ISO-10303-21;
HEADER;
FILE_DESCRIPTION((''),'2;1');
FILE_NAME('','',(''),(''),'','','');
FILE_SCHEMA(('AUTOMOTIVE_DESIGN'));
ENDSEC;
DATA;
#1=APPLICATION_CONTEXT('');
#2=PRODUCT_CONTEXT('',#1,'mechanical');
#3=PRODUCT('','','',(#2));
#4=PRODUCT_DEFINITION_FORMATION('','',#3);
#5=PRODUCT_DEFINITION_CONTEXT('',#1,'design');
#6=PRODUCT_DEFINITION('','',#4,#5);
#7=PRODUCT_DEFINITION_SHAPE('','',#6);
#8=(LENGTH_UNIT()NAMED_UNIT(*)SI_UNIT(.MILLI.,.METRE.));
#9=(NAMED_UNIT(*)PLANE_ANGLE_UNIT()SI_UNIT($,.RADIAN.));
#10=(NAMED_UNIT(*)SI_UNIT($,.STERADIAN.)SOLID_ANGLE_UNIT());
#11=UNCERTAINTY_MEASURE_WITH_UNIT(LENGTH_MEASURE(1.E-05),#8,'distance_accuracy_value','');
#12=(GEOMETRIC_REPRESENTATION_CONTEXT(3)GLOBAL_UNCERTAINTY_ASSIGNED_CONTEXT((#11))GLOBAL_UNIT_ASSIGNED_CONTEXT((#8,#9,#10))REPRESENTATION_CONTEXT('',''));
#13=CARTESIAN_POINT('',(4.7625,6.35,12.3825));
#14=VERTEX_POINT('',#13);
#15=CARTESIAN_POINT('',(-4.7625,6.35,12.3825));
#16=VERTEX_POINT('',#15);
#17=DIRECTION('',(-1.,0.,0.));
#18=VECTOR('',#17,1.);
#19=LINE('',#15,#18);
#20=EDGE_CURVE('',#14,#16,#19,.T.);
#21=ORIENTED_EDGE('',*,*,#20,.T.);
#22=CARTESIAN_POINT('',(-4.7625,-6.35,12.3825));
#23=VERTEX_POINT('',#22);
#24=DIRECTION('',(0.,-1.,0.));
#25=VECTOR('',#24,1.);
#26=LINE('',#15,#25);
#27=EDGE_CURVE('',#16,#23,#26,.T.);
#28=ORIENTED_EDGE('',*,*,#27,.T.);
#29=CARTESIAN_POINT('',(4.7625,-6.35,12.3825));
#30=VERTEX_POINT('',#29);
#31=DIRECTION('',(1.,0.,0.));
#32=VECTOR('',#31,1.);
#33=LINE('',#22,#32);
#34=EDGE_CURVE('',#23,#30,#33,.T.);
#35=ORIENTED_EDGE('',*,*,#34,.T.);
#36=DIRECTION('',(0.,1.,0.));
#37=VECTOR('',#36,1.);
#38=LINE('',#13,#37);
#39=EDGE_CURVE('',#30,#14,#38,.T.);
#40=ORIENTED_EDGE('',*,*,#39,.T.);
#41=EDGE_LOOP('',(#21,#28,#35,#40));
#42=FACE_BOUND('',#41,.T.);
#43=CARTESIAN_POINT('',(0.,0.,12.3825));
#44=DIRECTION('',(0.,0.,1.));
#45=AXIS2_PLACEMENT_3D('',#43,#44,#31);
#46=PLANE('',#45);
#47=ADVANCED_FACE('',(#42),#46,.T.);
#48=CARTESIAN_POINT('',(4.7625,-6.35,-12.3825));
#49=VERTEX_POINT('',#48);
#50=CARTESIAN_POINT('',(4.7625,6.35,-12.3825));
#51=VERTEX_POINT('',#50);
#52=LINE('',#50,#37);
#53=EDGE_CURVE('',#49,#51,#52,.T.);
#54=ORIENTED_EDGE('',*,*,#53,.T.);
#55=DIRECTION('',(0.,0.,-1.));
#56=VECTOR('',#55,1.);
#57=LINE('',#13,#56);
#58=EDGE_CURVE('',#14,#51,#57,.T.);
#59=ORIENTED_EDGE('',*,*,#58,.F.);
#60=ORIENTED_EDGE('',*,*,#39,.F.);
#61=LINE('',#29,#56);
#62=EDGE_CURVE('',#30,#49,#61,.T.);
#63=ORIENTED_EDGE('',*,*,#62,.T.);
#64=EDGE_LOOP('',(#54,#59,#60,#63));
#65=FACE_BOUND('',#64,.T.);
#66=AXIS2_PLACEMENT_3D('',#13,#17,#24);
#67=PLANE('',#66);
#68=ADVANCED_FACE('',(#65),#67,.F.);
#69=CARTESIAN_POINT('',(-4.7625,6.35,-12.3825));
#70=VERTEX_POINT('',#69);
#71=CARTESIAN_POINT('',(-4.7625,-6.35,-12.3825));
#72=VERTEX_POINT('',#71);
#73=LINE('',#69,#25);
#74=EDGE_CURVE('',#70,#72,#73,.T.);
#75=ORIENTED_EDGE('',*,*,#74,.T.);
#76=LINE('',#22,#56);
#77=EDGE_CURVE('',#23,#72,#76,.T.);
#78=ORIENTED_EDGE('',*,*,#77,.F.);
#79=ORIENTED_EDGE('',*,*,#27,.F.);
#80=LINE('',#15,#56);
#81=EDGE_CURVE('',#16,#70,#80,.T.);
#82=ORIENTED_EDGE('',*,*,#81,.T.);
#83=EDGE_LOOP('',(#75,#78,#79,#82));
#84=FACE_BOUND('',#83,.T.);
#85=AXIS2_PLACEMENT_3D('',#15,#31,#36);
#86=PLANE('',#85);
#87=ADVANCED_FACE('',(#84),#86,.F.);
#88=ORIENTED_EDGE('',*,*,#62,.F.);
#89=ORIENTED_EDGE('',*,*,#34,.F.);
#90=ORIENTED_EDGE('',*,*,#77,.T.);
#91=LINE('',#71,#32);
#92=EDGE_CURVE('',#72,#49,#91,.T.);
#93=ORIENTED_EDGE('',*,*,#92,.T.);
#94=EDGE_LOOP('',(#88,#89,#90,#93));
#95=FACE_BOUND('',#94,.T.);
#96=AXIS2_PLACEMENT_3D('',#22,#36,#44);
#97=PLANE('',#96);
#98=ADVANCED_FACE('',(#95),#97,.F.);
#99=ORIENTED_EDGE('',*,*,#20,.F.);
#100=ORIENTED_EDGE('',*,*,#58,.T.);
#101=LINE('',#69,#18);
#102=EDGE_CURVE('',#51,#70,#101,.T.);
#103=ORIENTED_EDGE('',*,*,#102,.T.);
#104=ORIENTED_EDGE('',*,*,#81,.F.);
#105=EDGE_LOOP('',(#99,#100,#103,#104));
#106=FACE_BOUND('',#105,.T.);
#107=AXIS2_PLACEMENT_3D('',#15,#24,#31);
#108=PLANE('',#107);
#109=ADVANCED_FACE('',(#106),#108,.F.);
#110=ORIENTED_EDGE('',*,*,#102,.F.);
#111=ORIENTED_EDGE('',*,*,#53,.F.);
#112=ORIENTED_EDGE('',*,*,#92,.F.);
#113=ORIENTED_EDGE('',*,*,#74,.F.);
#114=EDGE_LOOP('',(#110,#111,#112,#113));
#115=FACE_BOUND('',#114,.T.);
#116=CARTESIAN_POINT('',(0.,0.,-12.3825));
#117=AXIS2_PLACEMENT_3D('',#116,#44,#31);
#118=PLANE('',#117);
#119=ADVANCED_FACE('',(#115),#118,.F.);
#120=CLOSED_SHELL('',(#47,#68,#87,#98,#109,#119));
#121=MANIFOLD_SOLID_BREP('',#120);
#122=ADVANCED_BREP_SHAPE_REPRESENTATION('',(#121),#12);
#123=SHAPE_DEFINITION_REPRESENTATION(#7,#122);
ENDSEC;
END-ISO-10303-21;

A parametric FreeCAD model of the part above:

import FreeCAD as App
import Part
import Sketcher

V = App.Vector
Q = App.Units.Quantity


def add_polygon(sketch, points):
    """Adds a closed chain of lines whose ends are joined by coincident constraints."""
    first, n = sketch.GeometryCount, len(points)
    for a, b in zip(points, points[1:] + points[:1]):
        sketch.addGeometry(Part.LineSegment(App.Vector(*a, 0), App.Vector(*b, 0)), False)
    for i in range(n):
        sketch.addConstraint(Sketcher.Constraint("Coincident", first + i, 2, first + (i + 1) % n, 1))

doc = App.newDocument("Part")
body = doc.addObject("PartDesign::Body", "Body")

# Sketch on XY plane
sketch1 = body.newObject("Sketcher::SketchObject", "Sketch")
sketch1.AttachmentSupport = (doc.getObject("XY_Plane"), [""])
sketch1.MapMode = "FlatFace"
add_polygon(sketch1, [(-5, 6), (-5, -6), (5, -6), (5, 6)])  # lines 0-3
sketch1.addConstraint(Sketcher.Constraint("Vertical", 0))
sketch1.addConstraint(Sketcher.Constraint("Horizontal", 1))
sketch1.addConstraint(Sketcher.Constraint("Vertical", 2))
sketch1.addConstraint(Sketcher.Constraint("Horizontal", 3))
sketch1.addConstraint(Sketcher.Constraint("Symmetric", 0, 2, 2, 2, -1, 1))
sketch1.addConstraint(Sketcher.Constraint("DistanceY", 0, 2, 0, 1, Q("0.5 in")))
sketch1.addConstraint(Sketcher.Constraint("DistanceX", 1, 1, 1, 2, Q("0.375 in")))
pad1 = body.newObject("PartDesign::Pad", "Pad")
pad1.Profile = sketch1
pad1.Type = "TwoLengths"
pad1.Length = Q("0.4875 in")
pad1.Length2 = Q("0.4875 in")

doc.recompute()
